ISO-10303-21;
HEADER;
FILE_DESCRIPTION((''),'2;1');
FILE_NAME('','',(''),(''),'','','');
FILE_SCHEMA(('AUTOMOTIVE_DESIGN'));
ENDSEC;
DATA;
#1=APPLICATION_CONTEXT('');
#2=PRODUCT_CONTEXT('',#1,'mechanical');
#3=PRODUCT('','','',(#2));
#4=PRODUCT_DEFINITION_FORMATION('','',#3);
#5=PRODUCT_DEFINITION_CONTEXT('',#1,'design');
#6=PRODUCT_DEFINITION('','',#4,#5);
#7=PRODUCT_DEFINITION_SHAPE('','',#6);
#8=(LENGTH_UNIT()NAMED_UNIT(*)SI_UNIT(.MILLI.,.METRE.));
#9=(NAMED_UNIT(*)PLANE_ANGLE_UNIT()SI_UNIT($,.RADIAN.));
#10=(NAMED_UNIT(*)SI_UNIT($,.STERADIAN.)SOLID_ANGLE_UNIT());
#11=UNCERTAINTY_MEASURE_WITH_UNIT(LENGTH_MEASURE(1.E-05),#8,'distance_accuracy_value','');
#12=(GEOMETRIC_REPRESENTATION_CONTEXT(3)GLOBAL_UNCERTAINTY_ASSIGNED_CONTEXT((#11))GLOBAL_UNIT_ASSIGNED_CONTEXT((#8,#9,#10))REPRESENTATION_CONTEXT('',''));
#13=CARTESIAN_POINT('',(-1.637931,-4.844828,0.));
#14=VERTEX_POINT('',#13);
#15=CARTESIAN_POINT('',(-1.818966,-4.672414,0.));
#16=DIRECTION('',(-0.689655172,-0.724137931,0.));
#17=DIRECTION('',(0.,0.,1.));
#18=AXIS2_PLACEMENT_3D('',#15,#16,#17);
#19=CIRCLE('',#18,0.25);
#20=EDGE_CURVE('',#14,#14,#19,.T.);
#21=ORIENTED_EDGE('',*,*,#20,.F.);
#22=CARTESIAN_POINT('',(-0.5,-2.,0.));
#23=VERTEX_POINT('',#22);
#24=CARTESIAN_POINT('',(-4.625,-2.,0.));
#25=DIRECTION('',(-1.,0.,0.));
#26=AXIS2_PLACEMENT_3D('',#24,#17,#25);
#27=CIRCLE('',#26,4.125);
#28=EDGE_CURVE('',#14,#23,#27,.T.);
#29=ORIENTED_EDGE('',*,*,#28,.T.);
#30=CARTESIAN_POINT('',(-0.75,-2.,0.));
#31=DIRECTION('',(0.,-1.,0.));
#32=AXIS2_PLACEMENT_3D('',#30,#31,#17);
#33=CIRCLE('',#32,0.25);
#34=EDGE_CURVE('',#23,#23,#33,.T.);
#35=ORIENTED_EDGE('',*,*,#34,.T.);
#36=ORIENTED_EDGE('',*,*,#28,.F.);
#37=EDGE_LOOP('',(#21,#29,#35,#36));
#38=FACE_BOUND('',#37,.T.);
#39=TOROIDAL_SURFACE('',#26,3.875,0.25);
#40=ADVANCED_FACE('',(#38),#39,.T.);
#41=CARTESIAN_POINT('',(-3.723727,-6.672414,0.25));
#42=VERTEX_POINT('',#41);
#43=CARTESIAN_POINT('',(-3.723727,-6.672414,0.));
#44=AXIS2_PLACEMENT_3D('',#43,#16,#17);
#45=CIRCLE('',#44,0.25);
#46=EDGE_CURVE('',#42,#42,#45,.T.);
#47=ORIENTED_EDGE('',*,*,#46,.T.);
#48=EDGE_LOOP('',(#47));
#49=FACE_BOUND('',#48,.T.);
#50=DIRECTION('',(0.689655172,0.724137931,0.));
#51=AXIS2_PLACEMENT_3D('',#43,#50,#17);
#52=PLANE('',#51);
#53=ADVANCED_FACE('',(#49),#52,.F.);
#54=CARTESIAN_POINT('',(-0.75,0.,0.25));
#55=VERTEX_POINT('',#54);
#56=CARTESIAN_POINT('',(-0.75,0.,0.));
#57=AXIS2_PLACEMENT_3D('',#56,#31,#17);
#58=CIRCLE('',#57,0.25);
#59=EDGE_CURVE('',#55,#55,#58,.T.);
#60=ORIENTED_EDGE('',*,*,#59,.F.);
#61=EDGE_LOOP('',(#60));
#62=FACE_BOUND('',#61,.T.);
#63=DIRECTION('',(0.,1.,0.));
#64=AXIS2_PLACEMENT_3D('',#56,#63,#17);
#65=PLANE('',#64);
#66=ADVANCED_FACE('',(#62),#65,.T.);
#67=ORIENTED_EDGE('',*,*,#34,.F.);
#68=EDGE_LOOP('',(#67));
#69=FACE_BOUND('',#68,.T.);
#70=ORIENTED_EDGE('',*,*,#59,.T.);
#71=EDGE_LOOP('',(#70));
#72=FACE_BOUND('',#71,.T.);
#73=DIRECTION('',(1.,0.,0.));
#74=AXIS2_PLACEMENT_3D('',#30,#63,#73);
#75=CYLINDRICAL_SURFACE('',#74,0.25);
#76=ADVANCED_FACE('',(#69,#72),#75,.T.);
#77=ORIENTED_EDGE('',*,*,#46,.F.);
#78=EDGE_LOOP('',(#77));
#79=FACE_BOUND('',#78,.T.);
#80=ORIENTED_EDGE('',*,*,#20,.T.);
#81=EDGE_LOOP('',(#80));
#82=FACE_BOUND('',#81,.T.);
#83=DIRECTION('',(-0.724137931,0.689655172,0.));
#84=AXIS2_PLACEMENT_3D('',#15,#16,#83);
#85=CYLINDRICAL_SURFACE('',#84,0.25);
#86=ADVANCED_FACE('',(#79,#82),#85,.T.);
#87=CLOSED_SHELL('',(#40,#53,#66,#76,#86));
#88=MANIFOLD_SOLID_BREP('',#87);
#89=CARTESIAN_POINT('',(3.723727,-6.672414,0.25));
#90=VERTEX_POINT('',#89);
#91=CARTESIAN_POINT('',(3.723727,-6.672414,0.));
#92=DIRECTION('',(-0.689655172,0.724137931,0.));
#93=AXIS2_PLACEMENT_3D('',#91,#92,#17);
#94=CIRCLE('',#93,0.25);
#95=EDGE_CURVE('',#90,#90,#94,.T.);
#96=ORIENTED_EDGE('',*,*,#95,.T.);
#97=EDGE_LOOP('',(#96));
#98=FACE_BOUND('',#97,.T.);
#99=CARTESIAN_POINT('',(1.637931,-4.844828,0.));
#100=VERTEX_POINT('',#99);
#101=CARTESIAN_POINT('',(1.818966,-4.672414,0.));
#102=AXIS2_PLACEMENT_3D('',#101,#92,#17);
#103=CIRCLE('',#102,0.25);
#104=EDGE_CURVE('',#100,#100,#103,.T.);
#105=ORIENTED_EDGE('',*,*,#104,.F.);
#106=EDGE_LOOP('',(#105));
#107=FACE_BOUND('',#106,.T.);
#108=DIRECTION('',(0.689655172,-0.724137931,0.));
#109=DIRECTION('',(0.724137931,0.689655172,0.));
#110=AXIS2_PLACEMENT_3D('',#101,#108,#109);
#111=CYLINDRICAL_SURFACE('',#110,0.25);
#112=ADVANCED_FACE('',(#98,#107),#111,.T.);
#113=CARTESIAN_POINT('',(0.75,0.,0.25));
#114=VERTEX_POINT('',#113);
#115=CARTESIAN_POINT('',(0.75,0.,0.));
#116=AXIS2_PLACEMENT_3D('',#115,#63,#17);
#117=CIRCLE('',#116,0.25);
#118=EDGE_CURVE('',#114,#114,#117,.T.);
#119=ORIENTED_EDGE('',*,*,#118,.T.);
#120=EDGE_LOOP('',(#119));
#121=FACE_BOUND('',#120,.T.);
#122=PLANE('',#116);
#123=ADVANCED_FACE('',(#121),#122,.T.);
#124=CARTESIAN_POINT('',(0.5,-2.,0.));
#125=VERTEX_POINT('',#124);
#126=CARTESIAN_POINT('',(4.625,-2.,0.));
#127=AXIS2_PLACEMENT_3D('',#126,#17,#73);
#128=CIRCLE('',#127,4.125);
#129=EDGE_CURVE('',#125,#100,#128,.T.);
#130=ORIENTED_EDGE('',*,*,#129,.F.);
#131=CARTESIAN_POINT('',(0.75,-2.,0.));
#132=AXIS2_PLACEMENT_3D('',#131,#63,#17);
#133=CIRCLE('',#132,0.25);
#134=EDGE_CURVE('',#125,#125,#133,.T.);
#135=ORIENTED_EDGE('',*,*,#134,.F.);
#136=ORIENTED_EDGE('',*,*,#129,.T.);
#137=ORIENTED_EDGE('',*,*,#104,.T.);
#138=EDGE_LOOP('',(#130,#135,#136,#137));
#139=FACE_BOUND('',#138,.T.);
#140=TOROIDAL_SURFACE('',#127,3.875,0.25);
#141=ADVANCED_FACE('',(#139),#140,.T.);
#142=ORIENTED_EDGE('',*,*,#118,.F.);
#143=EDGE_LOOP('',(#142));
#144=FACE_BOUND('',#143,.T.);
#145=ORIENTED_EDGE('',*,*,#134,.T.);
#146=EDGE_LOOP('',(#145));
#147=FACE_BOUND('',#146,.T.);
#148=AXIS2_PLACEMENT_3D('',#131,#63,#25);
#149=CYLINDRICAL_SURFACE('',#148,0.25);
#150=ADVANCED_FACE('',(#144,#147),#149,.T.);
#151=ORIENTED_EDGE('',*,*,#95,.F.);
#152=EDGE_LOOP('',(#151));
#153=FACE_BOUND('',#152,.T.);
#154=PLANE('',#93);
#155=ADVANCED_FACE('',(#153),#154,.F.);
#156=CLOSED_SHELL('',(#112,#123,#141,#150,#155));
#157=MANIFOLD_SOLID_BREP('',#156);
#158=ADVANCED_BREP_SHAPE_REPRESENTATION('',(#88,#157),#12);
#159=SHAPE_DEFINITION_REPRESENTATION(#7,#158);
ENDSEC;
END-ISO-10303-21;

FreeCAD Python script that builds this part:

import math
import FreeCAD as App
import Part
import Sketcher
from FreeCAD import Vector
Q = App.Units.Quantity

doc = App.newDocument("Part")
body = doc.addObject("PartDesign::Body", "Body")

# Sketch on XZ plane
sketch1 = body.newObject("Sketcher::SketchObject", "Sketch")
sketch1.AttachmentSupport = (doc.getObject("XZ_Plane"), [""])
sketch1.MapMode = "FlatFace"
sketch1.addGeometry(Part.Circle(Vector(0.75, 0, 0), Vector(0, 0, 1), 0.25), False)
sketch1.addConstraint([
    Sketcher.Constraint("PointOnObject", 0, 3, -1),
    Sketcher.Constraint("Diameter", 0, Q("0.5 mm")),
    Sketcher.Constraint("DistanceX", -1, 1, 0, 3, Q("0.75 mm")),
])

# Sketch on XY plane
sketch2 = body.newObject("Sketcher::SketchObject", "Sketch001")
sketch2.AttachmentSupport = (doc.getObject("XY_Plane"), [""])
sketch2.MapMode = "FlatFace"
sketch2.addGeometry([
    Part.LineSegment(Vector(3.9, -6.5, 0), Vector(2, -4.5, 0)),
    Part.ArcOfCircle(Part.Circle(Vector(4.6, -2, 0), Vector(0, 0, 1), 3.6), math.radians(-180), math.radians(-136)),
    Part.LineSegment(Vector(1, -2, 0), Vector(1, 0, 0)),
], False)
sketch2.addConstraint([
    Sketcher.Constraint("Tangent", 0, 2, 1, 2),
    Sketcher.Constraint("Tangent", 1, 1, 2, 1),
    Sketcher.Constraint("Vertical", 2),
    Sketcher.Constraint("PointOnObject", 2, 2, -1),
    Sketcher.Constraint("DistanceY", 2, 1, 2, 2, Q("2 mm")),
    Sketcher.Constraint("DistanceX", -1, 1, 0, 2, Q("2 mm")),
    Sketcher.Constraint("DistanceX", -1, 1, 1, 1, Q("1 mm")),
    Sketcher.Constraint("Radius", 1, Q("3.625 mm")),
    Sketcher.Constraint("DistanceY", 0, 1, 0, 2, Q("2 mm")),
])
doc.recompute()

additivepipe = body.newObject("PartDesign::AdditivePipe", "AdditivePipe")
additivepipe.Profile = sketch1
additivepipe.Spine = (sketch2, ["Edge1", "Edge2", "Edge3"])
body2 = doc.addObject("PartDesign::Body", "Body001")
doc.recompute()

mirroring = doc.addObject("Part::Mirroring", "Mirroring")
mirroring.Source = body
mirroring.Base = Vector(0, 0, 0)
mirroring.Normal = Vector(1, 0, 0)
body2.BaseFeature = mirroring
doc.recompute()
mirroring.Visibility = False

doc.recompute()
